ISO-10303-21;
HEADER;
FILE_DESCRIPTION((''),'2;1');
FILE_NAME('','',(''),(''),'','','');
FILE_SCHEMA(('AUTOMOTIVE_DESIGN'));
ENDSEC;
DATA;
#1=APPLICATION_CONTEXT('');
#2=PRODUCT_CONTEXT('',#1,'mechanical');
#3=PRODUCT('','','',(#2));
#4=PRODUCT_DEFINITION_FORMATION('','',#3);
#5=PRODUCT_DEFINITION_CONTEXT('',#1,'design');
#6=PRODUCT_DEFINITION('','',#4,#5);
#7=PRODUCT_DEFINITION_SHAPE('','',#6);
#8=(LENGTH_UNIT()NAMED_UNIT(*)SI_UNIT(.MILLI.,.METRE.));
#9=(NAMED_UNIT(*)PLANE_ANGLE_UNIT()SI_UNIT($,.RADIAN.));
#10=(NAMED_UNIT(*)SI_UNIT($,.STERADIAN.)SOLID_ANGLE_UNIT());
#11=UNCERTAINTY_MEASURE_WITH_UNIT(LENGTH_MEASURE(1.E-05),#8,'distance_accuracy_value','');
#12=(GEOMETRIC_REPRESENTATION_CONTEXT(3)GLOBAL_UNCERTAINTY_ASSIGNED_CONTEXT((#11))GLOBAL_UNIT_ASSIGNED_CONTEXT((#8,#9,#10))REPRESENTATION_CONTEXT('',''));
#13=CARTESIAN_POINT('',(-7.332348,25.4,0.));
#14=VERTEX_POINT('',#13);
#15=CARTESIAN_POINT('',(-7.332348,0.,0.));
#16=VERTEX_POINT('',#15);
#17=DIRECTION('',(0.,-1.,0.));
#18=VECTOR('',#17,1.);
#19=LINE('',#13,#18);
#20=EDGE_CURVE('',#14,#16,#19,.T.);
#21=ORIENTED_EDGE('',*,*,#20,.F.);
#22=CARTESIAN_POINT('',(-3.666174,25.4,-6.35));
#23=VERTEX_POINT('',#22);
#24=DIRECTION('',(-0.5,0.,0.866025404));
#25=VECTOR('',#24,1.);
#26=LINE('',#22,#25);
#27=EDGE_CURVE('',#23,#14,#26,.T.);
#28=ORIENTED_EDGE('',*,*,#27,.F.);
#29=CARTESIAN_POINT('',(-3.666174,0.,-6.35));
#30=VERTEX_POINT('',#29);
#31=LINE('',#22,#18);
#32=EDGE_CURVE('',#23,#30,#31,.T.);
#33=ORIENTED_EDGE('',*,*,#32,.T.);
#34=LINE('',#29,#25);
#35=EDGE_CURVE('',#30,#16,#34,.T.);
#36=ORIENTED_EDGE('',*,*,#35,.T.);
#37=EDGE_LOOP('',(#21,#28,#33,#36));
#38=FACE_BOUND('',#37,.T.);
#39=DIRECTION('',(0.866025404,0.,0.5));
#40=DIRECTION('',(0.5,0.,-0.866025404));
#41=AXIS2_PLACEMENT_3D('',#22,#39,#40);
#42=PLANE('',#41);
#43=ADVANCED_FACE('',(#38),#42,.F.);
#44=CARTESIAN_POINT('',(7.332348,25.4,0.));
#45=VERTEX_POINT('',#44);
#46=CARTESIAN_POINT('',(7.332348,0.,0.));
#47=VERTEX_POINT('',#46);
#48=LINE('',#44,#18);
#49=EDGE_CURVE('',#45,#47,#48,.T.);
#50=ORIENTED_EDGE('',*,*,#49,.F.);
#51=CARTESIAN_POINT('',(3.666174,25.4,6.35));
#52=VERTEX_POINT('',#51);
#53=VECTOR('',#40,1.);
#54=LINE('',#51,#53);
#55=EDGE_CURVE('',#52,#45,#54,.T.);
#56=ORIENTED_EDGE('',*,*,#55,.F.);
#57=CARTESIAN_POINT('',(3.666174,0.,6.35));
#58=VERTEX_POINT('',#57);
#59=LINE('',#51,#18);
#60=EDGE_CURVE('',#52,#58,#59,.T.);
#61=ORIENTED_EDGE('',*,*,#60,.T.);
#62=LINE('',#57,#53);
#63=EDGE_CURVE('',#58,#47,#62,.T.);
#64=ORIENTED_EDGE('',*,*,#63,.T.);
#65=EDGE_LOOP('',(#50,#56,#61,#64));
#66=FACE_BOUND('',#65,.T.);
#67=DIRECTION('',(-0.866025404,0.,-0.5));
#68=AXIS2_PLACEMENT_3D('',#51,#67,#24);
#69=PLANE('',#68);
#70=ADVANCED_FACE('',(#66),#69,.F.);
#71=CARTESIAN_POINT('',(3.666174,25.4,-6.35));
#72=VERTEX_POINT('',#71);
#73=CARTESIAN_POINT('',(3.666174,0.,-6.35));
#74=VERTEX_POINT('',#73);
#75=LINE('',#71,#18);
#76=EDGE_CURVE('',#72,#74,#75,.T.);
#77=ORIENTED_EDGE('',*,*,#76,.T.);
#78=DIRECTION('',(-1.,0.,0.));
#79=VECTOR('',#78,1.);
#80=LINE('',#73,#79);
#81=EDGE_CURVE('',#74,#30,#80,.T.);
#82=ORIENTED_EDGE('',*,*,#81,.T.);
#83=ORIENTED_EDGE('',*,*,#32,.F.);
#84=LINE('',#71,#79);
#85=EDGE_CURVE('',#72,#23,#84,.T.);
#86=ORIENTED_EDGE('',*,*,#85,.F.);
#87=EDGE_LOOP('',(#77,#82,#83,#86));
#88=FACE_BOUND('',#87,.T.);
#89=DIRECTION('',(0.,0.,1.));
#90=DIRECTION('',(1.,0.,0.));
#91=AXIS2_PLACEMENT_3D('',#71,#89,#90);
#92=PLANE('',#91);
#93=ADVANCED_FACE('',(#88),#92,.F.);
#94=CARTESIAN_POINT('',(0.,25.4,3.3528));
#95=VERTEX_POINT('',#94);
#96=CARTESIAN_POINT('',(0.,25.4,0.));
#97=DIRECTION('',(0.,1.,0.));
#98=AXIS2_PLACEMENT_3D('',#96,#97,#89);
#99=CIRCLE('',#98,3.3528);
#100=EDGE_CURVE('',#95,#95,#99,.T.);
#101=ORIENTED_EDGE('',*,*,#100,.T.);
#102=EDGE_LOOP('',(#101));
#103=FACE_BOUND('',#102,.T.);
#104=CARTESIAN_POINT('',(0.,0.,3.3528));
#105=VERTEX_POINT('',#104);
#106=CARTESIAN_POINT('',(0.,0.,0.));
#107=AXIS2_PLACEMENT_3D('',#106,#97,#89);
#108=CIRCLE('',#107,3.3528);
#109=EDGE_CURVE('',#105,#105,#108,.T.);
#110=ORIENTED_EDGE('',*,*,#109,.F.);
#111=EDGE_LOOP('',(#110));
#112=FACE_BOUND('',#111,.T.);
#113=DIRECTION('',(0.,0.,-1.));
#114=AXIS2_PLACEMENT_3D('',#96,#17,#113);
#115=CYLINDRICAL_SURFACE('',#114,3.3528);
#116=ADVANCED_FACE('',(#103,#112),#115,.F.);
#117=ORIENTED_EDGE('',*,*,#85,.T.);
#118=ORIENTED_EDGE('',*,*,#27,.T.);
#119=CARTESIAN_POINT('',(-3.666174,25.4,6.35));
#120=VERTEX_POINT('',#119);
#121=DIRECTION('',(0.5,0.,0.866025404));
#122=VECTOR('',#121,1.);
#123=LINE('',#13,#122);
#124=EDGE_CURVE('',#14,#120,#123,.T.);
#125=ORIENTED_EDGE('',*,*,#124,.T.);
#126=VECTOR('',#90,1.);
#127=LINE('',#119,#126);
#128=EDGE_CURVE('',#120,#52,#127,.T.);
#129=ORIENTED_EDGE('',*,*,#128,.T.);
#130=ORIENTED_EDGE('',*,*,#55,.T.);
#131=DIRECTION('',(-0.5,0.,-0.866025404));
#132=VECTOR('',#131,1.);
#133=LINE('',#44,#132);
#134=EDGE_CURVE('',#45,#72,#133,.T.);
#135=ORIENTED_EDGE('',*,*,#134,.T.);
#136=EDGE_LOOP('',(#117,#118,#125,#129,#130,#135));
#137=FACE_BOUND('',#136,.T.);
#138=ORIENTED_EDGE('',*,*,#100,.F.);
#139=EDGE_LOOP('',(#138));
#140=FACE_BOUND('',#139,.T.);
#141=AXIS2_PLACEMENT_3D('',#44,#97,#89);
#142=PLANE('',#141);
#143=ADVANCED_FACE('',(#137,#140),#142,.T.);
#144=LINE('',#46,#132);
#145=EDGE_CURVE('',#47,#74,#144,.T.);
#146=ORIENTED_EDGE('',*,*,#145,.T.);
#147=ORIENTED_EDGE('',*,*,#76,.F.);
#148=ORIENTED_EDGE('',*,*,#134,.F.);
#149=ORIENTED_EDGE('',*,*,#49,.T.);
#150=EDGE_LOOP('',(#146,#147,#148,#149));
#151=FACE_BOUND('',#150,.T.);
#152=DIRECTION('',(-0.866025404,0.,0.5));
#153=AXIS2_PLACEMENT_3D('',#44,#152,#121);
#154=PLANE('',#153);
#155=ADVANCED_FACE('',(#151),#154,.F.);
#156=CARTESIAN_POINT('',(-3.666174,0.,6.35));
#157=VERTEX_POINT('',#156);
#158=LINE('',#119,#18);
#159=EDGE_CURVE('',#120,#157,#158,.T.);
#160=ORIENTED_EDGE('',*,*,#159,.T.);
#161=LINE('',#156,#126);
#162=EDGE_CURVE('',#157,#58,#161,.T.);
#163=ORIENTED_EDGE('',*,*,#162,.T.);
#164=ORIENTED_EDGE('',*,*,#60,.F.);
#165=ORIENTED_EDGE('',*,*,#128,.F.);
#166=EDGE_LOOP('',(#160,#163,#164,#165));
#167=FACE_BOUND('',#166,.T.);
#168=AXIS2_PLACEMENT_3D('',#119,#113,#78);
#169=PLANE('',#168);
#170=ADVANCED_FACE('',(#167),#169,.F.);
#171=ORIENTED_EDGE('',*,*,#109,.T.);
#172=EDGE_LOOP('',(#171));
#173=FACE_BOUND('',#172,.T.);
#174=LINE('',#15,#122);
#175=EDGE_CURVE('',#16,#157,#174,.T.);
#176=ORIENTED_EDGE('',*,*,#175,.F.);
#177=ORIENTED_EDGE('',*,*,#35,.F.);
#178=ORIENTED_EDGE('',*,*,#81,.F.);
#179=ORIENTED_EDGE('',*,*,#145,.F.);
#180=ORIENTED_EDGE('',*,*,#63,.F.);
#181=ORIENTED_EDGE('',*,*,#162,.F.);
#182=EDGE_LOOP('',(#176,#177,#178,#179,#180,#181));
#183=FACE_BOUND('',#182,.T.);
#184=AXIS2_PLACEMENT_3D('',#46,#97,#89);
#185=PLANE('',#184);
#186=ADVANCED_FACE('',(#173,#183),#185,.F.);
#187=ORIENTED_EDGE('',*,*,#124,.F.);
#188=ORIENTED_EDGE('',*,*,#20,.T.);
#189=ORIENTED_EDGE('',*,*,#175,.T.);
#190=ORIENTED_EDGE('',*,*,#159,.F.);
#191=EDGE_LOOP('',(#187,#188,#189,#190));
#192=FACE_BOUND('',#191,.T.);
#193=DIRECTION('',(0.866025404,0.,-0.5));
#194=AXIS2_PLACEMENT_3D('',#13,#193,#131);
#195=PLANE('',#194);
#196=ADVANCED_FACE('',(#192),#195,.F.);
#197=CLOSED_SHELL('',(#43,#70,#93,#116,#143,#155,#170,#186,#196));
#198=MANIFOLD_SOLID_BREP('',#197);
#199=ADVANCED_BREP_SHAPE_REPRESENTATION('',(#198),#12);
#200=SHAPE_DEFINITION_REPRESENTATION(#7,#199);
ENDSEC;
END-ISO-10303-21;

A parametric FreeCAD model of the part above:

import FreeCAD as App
import Part
import Sketcher

V = App.Vector
Q = App.Units.Quantity


def add_polygon(sketch, points):
    """Adds a closed chain of lines whose ends are joined by coincident constraints."""
    first, n = sketch.GeometryCount, len(points)
    for a, b in zip(points, points[1:] + points[:1]):
        sketch.addGeometry(Part.LineSegment(App.Vector(*a, 0), App.Vector(*b, 0)), False)
    for i in range(n):
        sketch.addConstraint(Sketcher.Constraint("Coincident", first + i, 2, first + (i + 1) % n, 1))

doc = App.newDocument("Part")
params = doc.addObject("Spreadsheet::Sheet", "Params")
for row, (alias, value) in enumerate([
    ("sketch1_diameter", "0.264 in"),
    ("pad1_length", "1 in"),
], start=1):
    params.set(f"A{row}", alias)
    params.set(f"B{row}", "=" + value)
    params.setAlias(f"B{row}", alias)

body = doc.addObject("PartDesign::Body", "Body")

# Sketch on XZ plane
sketch1 = body.newObject("Sketcher::SketchObject", "Sketch")
sketch1.AttachmentSupport = (doc.getObject("XZ_Plane"), [""])
sketch1.MapMode = "FlatFace"
add_polygon(sketch1, [(7.3, 0), (3.7, -6.3), (-3.7, -6.3), (-7.3, 0), (-3.7, 6.3), (3.7, 6.3)])  # lines 0-5
sketch1.addGeometry(Part.Circle(V(0, 0, 0), V(0, 0, 1), 3.4), False)  # 6
sketch1.addConstraint([
    Sketcher.Constraint("Horizontal", 1),
    Sketcher.Constraint("Horizontal", 4),
    Sketcher.Constraint("Coincident", 6, 3, -1, 1),
    Sketcher.Constraint("Symmetric", 0, 2, 3, 2, -1, 1),
    Sketcher.Constraint("Symmetric", 2, 2, 5, 2, -1, 1),
    Sketcher.Constraint("PointOnObject", 2, 2, -1),
    Sketcher.Constraint("Parallel", 2, 5),
    Sketcher.Constraint("Vertical", 1, 2, 3, 2),
    Sketcher.Constraint("Diameter", 6, Q("0.264 in")),
    Sketcher.Constraint("Angle", 0, Q("-120 deg")),
    Sketcher.Constraint("DistanceY", 1, 2, 3, 2, Q("0.5 in")),
    Sketcher.Constraint("DistanceX", 1, 2, 1, 1, Q("7.332348 mm")),
])
sketch1.setExpression("Constraints[14]", "Params.sketch1_diameter")
pad1 = body.newObject("PartDesign::Pad", "Pad")
pad1.Profile = sketch1
pad1.setExpression("Length", "Params.pad1_length")
pad1.Reversed = True

doc.recompute()
